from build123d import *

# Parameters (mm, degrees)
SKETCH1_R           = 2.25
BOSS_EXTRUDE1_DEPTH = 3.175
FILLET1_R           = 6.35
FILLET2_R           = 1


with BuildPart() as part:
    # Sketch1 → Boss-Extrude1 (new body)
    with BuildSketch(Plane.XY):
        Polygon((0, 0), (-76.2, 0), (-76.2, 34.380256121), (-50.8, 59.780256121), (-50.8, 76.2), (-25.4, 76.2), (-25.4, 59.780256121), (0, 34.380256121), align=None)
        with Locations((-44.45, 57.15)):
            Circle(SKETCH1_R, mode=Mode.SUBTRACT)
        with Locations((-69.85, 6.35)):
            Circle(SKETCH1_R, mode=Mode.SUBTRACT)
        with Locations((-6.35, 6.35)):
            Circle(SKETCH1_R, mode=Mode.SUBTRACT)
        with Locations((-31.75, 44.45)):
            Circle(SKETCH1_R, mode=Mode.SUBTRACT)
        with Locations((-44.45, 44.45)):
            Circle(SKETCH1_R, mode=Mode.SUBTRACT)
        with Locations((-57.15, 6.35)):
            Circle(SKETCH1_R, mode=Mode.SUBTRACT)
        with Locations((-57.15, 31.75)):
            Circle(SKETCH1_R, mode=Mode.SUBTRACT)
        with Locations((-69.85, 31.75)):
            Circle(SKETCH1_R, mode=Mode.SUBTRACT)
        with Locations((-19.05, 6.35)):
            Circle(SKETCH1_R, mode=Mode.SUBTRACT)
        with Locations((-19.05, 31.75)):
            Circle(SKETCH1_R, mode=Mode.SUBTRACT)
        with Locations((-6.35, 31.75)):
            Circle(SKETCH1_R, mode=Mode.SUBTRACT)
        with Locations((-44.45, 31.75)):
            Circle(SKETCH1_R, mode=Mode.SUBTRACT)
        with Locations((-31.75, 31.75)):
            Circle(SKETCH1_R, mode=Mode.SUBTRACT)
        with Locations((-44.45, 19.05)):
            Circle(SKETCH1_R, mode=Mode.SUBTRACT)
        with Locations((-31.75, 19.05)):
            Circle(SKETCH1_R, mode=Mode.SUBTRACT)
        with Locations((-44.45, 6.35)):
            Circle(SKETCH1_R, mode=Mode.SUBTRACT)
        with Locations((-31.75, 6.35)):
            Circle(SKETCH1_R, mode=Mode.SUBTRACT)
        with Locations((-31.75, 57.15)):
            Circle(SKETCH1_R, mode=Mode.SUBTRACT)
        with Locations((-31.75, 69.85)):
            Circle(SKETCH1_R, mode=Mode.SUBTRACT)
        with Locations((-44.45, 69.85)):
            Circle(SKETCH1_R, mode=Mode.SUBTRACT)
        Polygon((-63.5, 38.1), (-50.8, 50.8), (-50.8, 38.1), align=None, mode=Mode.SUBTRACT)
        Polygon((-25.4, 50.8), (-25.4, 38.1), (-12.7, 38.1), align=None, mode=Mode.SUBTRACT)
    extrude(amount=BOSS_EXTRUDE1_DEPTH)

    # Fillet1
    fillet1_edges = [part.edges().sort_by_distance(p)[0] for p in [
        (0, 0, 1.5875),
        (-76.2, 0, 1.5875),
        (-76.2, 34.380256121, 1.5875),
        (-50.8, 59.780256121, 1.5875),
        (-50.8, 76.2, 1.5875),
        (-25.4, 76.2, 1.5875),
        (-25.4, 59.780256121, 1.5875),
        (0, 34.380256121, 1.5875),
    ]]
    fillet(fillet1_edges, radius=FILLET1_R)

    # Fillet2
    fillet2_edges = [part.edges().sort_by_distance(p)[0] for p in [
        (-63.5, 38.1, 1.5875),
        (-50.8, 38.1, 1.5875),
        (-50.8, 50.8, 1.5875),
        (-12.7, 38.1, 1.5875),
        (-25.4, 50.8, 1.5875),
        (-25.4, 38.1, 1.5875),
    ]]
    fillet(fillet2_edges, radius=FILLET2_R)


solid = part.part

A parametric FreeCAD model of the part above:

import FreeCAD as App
import Part
import Sketcher
Q = App.Units.Quantity


def edges_at(feature, points):
    """Names of the edges that pass closest to the given points."""
    edges = feature.Shape.Edges
    near = lambda p: min(range(len(edges)), key=lambda i: edges[i].distToShape(Part.Vertex(*p))[0])
    return sorted({f"Edge{near(p) + 1}" for p in points})

doc = App.newDocument("Part")
body = doc.addObject("PartDesign::Body", "Body")

# Sketch on XY plane
sketch1 = body.newObject("Sketcher::SketchObject", "Sketch")
sketch1.AttachmentSupport = (doc.getObject("XY_Plane"), [""])
sketch1.MapMode = "FlatFace"
sketch1.addGeometry([
    Part.LineSegment(App.Vector(-76.2, 0, 0), App.Vector(0, 0, 0)),  # 0
    Part.LineSegment(App.Vector(0, 0, 0), App.Vector(0, 34.4, 0)),  # 1
    Part.LineSegment(App.Vector(0, 34.4, 0), App.Vector(-25.4, 59.8, 0)),  # 2
    Part.LineSegment(App.Vector(-25.4, 59.8, 0), App.Vector(-25.4, 76.2, 0)),  # 3
    Part.LineSegment(App.Vector(-25.4, 76.2, 0), App.Vector(-50.8, 76.2, 0)),  # 4
    Part.LineSegment(App.Vector(-50.8, 76.2, 0), App.Vector(-50.8, 59.8, 0)),  # 5
    Part.LineSegment(App.Vector(-50.8, 59.8, 0), App.Vector(-76.2, 34.4, 0)),  # 6
    Part.LineSegment(App.Vector(-76.2, 34.4, 0), App.Vector(-76.2, 0, 0)),  # 7
    Part.Circle(App.Vector(-6.3, 6.3, 0), App.Vector(0, 0, 1), 2.2),  # 8
    Part.Circle(App.Vector(-19.1, 6.3, 0), App.Vector(0, 0, 1), 2.2),  # 9
    Part.Circle(App.Vector(-31.8, 6.3, 0), App.Vector(0, 0, 1), 2.2),  # 10
    Part.Circle(App.Vector(-31.8, 19.1, 0), App.Vector(0, 0, 1), 2.2),  # 11
    Part.Circle(App.Vector(-6.3, 31.8, 0), App.Vector(0, 0, 1), 2.2),  # 12
    Part.Circle(App.Vector(-19.1, 31.8, 0), App.Vector(0, 0, 1), 2.2),  # 13
    Part.Circle(App.Vector(-31.8, 31.8, 0), App.Vector(0, 0, 1), 2.2),  # 14
    Part.Circle(App.Vector(-44.5, 6.3, 0), App.Vector(0, 0, 1), 2.2),  # 15
    Part.Circle(App.Vector(-44.5, 19.1, 0), App.Vector(0, 0, 1), 2.2),  # 16
    Part.Circle(App.Vector(-57.1, 6.3, 0), App.Vector(0, 0, 1), 2.2),  # 17
    Part.Circle(App.Vector(-69.8, 6.3, 0), App.Vector(0, 0, 1), 2.2),  # 18
    Part.Circle(App.Vector(-44.5, 31.8, 0), App.Vector(0, 0, 1), 2.2),  # 19
    Part.Circle(App.Vector(-57.1, 31.8, 0), App.Vector(0, 0, 1), 2.2),  # 20
    Part.Circle(App.Vector(-69.8, 31.8, 0), App.Vector(0, 0, 1), 2.2),  # 21
    Part.LineSegment(App.Vector(-25.4, 50.8, 0), App.Vector(-12.7, 38.1, 0)),  # 22
    Part.LineSegment(App.Vector(-12.7, 38.1, 0), App.Vector(-25.4, 38.1, 0)),  # 23
    Part.LineSegment(App.Vector(-25.4, 38.1, 0), App.Vector(-25.4, 50.8, 0)),  # 24
    Part.Circle(App.Vector(-31.8, 44.5, 0), App.Vector(0, 0, 1), 2.2),  # 25
    Part.Circle(App.Vector(-31.8, 57.1, 0), App.Vector(0, 0, 1), 2.2),  # 26
    Part.Circle(App.Vector(-31.8, 69.8, 0), App.Vector(0, 0, 1), 2.2),  # 27
    Part.Circle(App.Vector(-44.5, 44.5, 0), App.Vector(0, 0, 1), 2.2),  # 28
    Part.LineSegment(App.Vector(-63.5, 38.1, 0), App.Vector(-50.8, 50.8, 0)),  # 29
    Part.LineSegment(App.Vector(-50.8, 50.8, 0), App.Vector(-50.8, 38.1, 0)),  # 30
    Part.LineSegment(App.Vector(-50.8, 38.1, 0), App.Vector(-63.5, 38.1, 0)),  # 31
    Part.Circle(App.Vector(-44.5, 57.1, 0), App.Vector(0, 0, 1), 2.2),  # 32
    Part.Circle(App.Vector(-44.5, 69.8, 0), App.Vector(0, 0, 1), 2.2),  # 33
], False)
sketch1.addConstraint([
    Sketcher.Constraint("Coincident", 0, 2, 1, 1),
    Sketcher.Constraint("Coincident", 1, 2, 2, 1),
    Sketcher.Constraint("Coincident", 2, 2, 3, 1),
    Sketcher.Constraint("Coincident", 3, 2, 4, 1),
    Sketcher.Constraint("Coincident", 4, 2, 5, 1),
    Sketcher.Constraint("Coincident", 5, 2, 6, 1),
    Sketcher.Constraint("Coincident", 6, 2, 7, 1),
    Sketcher.Constraint("Coincident", 7, 2, 0, 1),
    Sketcher.Constraint("Coincident", 22, 2, 23, 1),
    Sketcher.Constraint("Coincident", 23, 2, 24, 1),
    Sketcher.Constraint("Coincident", 24, 2, 22, 1),
    Sketcher.Constraint("Coincident", 29, 2, 30, 1),
    Sketcher.Constraint("Coincident", 30, 2, 31, 1),
    Sketcher.Constraint("Coincident", 31, 2, 29, 1),
    Sketcher.Constraint("Horizontal", 0),
    Sketcher.Constraint("Vertical", 1),
    Sketcher.Constraint("Vertical", 3),
    Sketcher.Constraint("Horizontal", 4),
    Sketcher.Constraint("Vertical", 5),
    Sketcher.Constraint("Vertical", 7),
    Sketcher.Constraint("Horizontal", 23),
    Sketcher.Constraint("Vertical", 24),
    Sketcher.Constraint("Vertical", 30),
    Sketcher.Constraint("Horizontal", 31),
    Sketcher.Constraint("Coincident", 0, 2, -1, 1),
    Sketcher.Constraint("Equal", 8, 9),
    Sketcher.Constraint("Equal", 9, 10),
    Sketcher.Constraint("Equal", 10, 11),
    Sketcher.Constraint("Equal", 11, 12),
    Sketcher.Constraint("Equal", 12, 13),
    Sketcher.Constraint("Equal", 13, 14),
    Sketcher.Constraint("Equal", 14, 15),
    Sketcher.Constraint("Equal", 15, 16),
    Sketcher.Constraint("Equal", 16, 17),
    Sketcher.Constraint("Equal", 17, 18),
    Sketcher.Constraint("Equal", 18, 19),
    Sketcher.Constraint("Equal", 19, 20),
    Sketcher.Constraint("Equal", 20, 21),
    Sketcher.Constraint("Equal", 21, 25),
    Sketcher.Constraint("Equal", 25, 26),
    Sketcher.Constraint("Equal", 26, 27),
    Sketcher.Constraint("Equal", 27, 28),
    Sketcher.Constraint("Equal", 28, 32),
    Sketcher.Constraint("Equal", 32, 33),
    Sketcher.Constraint("Perpendicular", 2, 6),
    Sketcher.Constraint("Perpendicular", 6, 22),
    Sketcher.Constraint("Perpendicular", 22, 29),
    Sketcher.Constraint("Horizontal", 8, 3, 9, 3),
    Sketcher.Constraint("Horizontal", 9, 3, 10, 3),
    Sketcher.Constraint("Horizontal", 12, 3, 13, 3),
    Sketcher.Constraint("Horizontal", 13, 3, 14, 3),
    Sketcher.Constraint("Horizontal", 10, 3, 15, 3),
    Sketcher.Constraint("Horizontal", 11, 3, 16, 3),
    Sketcher.Constraint("Horizontal", 15, 3, 17, 3),
    Sketcher.Constraint("Horizontal", 17, 3, 18, 3),
    Sketcher.Constraint("Horizontal", 14, 3, 19, 3),
    Sketcher.Constraint("Horizontal", 19, 3, 20, 3),
    Sketcher.Constraint("Horizontal", 20, 3, 21, 3),
    Sketcher.Constraint("Horizontal", 25, 3, 28, 3),
    Sketcher.Constraint("Horizontal", 26, 3, 32, 3),
    Sketcher.Constraint("Horizontal", 27, 3, 33, 3),
    Sketcher.Constraint("Horizontal", 2, 2, 5, 2),
    Sketcher.Constraint("Horizontal", 1, 2, 6, 2),
    Sketcher.Constraint("Horizontal", 24, 2, 29, 2),
    Sketcher.Constraint("Horizontal", 23, 2, 30, 2),
    Sketcher.Constraint("Vertical", 10, 3, 11, 3),
    Sketcher.Constraint("Vertical", 8, 3, 12, 3),
    Sketcher.Constraint("Vertical", 9, 3, 13, 3),
    Sketcher.Constraint("Vertical", 11, 3, 14, 3),
    Sketcher.Constraint("Vertical", 15, 3, 16, 3),
    Sketcher.Constraint("Vertical", 16, 3, 19, 3),
    Sketcher.Constraint("Vertical", 17, 3, 20, 3),
    Sketcher.Constraint("Vertical", 18, 3, 21, 3),
    Sketcher.Constraint("Vertical", 14, 3, 25, 3),
    Sketcher.Constraint("Vertical", 25, 3, 26, 3),
    Sketcher.Constraint("Vertical", 26, 3, 27, 3),
    Sketcher.Constraint("Vertical", 19, 3, 28, 3),
    Sketcher.Constraint("Vertical", 28, 3, 32, 3),
    Sketcher.Constraint("Vertical", 32, 3, 33, 3),
    Sketcher.Constraint("Vertical", 3, 2, 23, 2),
    Sketcher.Constraint("Vertical", 5, 2, 29, 2),
    Sketcher.Constraint("Equal", 23, 31),
    Sketcher.Constraint("DistanceX", 0, 1, 0, 2, Q("3 in")),
    Sketcher.Constraint("DistanceX", 4, 2, 4, 1, Q("1 in")),
    Sketcher.Constraint("DistanceX", 23, 2, 23, 1, Q("0.5 in")),
    Sketcher.Constraint("DistanceY", -1, 1, 3, 2, Q("3 in")),
    Sketcher.Constraint("DistanceY", -1, 1, 24, 2, Q("2 in")),
    Sketcher.Constraint("DistanceX", 10, 3, 8, 3, Q("1 in")),
    Sketcher.Constraint("DistanceY", 8, 3, 12, 3, Q("1 in")),
    Sketcher.Constraint("DistanceX", 15, 3, 9, 3, Q("1 in")),
    Sketcher.Constraint("DistanceX", 17, 3, 10, 3, Q("1 in")),
    Sketcher.Constraint("DistanceX", 18, 3, 15, 3, Q("1 in")),
    Sketcher.Constraint("DistanceY", 11, 3, 25, 3, Q("1 in")),
    Sketcher.Constraint("DistanceY", 14, 3, 26, 3, Q("1 in")),
    Sketcher.Constraint("DistanceY", 25, 3, 27, 3, Q("1 in")),
    Sketcher.Constraint("DistanceX", 9, 3, 8, 3, Q("0.5 in")),
    Sketcher.Constraint("DistanceY", 10, 3, 11, 3, Q("0.5 in")),
    Sketcher.Constraint("Diameter", 8, 4.5),
    Sketcher.Constraint("DistanceX", 8, 3, -1, 1, Q("0.25 in")),
    Sketcher.Constraint("DistanceY", -1, 1, 8, 3, Q("0.25 in")),
    Sketcher.Constraint("DistanceY", 1, 1, 1, 2, 34.380256),
])
pad1 = body.newObject("PartDesign::Pad", "Pad")
pad1.Profile = sketch1
pad1.Length = Q("0.125 in")
doc.recompute()

fillet = body.newObject("PartDesign::Fillet", "Fillet")
fillet.Base = (pad1, edges_at(pad1, [
    (0, 0, 1.587),
    (-76.2, 0, 1.587),
    (-76.2, 34.38, 1.587),
    (-50.8, 59.78, 1.587),
    (-50.8, 76.2, 1.587),
    (-25.4, 76.2, 1.587),
    (-25.4, 59.78, 1.587),
    (0, 34.38, 1.587),
]))
fillet.Radius = Q("0.25 in")
doc.recompute()

fillet2 = body.newObject("PartDesign::Fillet", "Fillet001")
fillet2.Base = (fillet, edges_at(fillet, [
    (-63.5, 38.1, 1.587),
    (-50.8, 38.1, 1.587),
    (-50.8, 50.8, 1.587),
    (-12.7, 38.1, 1.587),
    (-25.4, 50.8, 1.587),
    (-25.4, 38.1, 1.587),
]))
fillet2.Radius = 1

doc.recompute()
